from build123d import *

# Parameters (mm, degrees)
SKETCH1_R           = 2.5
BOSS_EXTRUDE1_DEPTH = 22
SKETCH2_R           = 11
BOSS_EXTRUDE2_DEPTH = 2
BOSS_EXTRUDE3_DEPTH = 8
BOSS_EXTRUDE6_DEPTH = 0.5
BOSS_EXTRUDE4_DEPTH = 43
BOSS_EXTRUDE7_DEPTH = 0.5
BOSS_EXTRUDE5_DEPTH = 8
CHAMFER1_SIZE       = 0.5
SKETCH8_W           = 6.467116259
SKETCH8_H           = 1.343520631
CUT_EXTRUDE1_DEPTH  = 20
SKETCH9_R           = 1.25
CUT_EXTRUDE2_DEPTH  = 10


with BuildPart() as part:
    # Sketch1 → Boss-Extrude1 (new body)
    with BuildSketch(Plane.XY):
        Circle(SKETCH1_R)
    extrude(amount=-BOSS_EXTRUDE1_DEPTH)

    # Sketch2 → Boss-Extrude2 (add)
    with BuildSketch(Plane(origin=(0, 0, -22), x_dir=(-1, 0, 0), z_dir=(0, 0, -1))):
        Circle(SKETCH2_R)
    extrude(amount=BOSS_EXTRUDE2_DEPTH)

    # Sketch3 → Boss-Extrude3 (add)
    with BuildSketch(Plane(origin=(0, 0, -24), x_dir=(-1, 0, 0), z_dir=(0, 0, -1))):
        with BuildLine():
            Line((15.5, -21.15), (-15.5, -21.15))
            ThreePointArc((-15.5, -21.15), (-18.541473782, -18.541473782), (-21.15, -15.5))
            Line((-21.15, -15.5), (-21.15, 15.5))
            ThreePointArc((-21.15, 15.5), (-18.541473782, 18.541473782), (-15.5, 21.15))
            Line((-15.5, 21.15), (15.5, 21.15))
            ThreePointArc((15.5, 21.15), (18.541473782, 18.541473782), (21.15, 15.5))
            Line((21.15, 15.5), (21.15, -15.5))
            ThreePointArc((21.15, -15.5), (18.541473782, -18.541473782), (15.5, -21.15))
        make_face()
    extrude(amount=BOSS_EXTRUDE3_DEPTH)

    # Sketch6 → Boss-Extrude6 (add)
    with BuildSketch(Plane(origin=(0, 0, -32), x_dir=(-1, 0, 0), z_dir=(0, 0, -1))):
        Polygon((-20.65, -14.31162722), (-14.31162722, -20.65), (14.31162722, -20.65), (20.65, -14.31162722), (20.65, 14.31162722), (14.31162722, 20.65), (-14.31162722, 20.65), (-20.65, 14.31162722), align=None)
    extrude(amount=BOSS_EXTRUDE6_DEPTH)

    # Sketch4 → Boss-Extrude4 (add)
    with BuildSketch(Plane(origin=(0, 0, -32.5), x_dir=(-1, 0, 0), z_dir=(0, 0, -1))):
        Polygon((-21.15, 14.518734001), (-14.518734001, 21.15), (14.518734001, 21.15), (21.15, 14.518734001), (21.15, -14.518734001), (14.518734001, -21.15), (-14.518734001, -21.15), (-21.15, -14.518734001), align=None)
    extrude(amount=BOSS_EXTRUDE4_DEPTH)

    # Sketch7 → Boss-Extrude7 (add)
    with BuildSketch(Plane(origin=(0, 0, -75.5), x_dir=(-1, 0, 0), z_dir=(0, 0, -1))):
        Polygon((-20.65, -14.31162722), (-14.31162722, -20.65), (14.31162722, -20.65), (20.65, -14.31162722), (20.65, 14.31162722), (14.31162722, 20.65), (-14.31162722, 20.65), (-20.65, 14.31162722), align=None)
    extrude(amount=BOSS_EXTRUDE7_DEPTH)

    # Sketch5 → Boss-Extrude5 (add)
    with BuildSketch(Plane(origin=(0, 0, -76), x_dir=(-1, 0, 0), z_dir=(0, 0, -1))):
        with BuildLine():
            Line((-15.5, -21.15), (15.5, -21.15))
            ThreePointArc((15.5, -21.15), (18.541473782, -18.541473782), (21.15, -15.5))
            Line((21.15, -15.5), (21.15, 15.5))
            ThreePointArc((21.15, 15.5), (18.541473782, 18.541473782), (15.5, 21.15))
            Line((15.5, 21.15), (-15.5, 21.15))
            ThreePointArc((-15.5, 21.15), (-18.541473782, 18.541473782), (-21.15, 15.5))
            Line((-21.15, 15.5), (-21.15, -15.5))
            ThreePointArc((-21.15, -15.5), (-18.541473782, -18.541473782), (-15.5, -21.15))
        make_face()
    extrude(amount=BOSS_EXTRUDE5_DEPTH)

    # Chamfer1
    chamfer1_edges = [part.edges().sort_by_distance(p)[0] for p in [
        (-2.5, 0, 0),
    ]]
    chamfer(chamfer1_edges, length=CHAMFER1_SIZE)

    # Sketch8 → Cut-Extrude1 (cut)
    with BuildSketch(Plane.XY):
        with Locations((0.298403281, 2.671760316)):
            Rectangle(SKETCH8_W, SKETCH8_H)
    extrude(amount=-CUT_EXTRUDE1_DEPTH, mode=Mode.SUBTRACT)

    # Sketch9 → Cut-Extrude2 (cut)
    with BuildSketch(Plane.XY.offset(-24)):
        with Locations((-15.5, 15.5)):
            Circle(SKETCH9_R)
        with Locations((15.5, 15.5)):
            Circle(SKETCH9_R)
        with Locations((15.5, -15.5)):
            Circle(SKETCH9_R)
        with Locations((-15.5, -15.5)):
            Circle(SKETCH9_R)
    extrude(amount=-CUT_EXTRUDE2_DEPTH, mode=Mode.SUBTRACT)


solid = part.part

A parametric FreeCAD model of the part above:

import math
import FreeCAD as App
import Part
import Sketcher

V = App.Vector


def edges_at(feature, points):
    """Names of the edges that pass closest to the given points."""
    edges = feature.Shape.Edges
    near = lambda p: min(range(len(edges)), key=lambda i: edges[i].distToShape(Part.Vertex(*p))[0])
    return sorted({f"Edge{near(p) + 1}" for p in points})

doc = App.newDocument("Part")
body = doc.addObject("PartDesign::Body", "Body")

# Sketch on XY plane
sketch1 = doc.addObject("Sketcher::SketchObject", "Sketch")
body.addObject(sketch1)
sketch1.AttachmentSupport = (doc.XY_Plane, [""])
sketch1.MapMode = "FlatFace"
sketch1.addGeometry(Part.Circle(V(0, 0, 0), V(0, 0, 1), 2.5), False)
sketch1.addConstraint(Sketcher.Constraint("Coincident", 0, 3, -1, 1))
sketch1.addConstraint(Sketcher.Constraint("Diameter", 0, 5.0))
pad1 = doc.addObject("PartDesign::Pad", "Pad")
body.addObject(pad1)
pad1.Profile = sketch1
pad1.Length = 22
pad1.Reversed = True

# Sketch on XY plane
sketch2 = doc.addObject("Sketcher::SketchObject", "Sketch001")
body.addObject(sketch2)
sketch2.AttachmentSupport = (doc.XY_Plane, [""])
sketch2.MapMode = "FlatFace"
sketch2.AttachmentOffset = App.Placement(V(0, 0, -22), App.Rotation())
sketch2.addGeometry(Part.Circle(V(0, 0, 0), V(0, 0, 1), 11), False)
sketch2.addConstraint(Sketcher.Constraint("Coincident", 0, 3, -1, 1))
sketch2.addConstraint(Sketcher.Constraint("Diameter", 0, 22.0))
pad2 = doc.addObject("PartDesign::Pad", "Pad001")
body.addObject(pad2)
pad2.Profile = sketch2
pad2.Length = 2
pad2.Reversed = True

# Sketch on XY plane
sketch3 = doc.addObject("Sketcher::SketchObject", "Sketch002")
body.addObject(sketch3)
sketch3.AttachmentSupport = (doc.XY_Plane, [""])
sketch3.MapMode = "FlatFace"
sketch3.AttachmentOffset = App.Placement(V(0, 0, -24), App.Rotation())
sketch3.addGeometry(Part.LineSegment(V(16, -21, 0), V(-16, -21, 0)), False)
sketch3.addGeometry(Part.ArcOfCircle(Part.Circle(V(0, 0, 0), V(0, 0, 1), 26), math.radians(-143.76), math.radians(-126.24)), False)
sketch3.addGeometry(Part.LineSegment(V(-21, -16, 0), V(-21, 16, 0)), False)
sketch3.addGeometry(Part.ArcOfCircle(Part.Circle(V(0, 0, 0), V(0, 0, 1), 26), math.radians(126.24), math.radians(143.76)), False)
sketch3.addGeometry(Part.LineSegment(V(-16, 21, 0), V(16, 21, 0)), False)
sketch3.addGeometry(Part.ArcOfCircle(Part.Circle(V(0, 0, 0), V(0, 0, 1), 26), math.radians(36.24), math.radians(53.76)), False)
sketch3.addGeometry(Part.LineSegment(V(21, 16, 0), V(21, -16, 0)), False)
sketch3.addGeometry(Part.ArcOfCircle(Part.Circle(V(0, 0, 0), V(0, 0, 1), 26), math.radians(-53.76), math.radians(-36.24)), False)
sketch3.addConstraint(Sketcher.Constraint("Coincident", 0, 2, 1, 2))
sketch3.addConstraint(Sketcher.Constraint("Coincident", 1, 1, 2, 1))
sketch3.addConstraint(Sketcher.Constraint("Coincident", 2, 2, 3, 2))
sketch3.addConstraint(Sketcher.Constraint("Coincident", 3, 1, 4, 1))
sketch3.addConstraint(Sketcher.Constraint("Coincident", 4, 2, 5, 2))
sketch3.addConstraint(Sketcher.Constraint("Coincident", 5, 1, 6, 1))
sketch3.addConstraint(Sketcher.Constraint("Coincident", 6, 2, 7, 2))
sketch3.addConstraint(Sketcher.Constraint("Coincident", 7, 1, 0, 1))
sketch3.addConstraint(Sketcher.Constraint("Horizontal", 0))
sketch3.addConstraint(Sketcher.Constraint("Vertical", 2))
sketch3.addConstraint(Sketcher.Constraint("Horizontal", 4))
sketch3.addConstraint(Sketcher.Constraint("Vertical", 6))
sketch3.addConstraint(Sketcher.Constraint("Coincident", 1, 3, -1, 1))
sketch3.addConstraint(Sketcher.Constraint("Coincident", 3, 3, -1, 1))
sketch3.addConstraint(Sketcher.Constraint("Coincident", 5, 3, -1, 1))
sketch3.addConstraint(Sketcher.Constraint("Coincident", 7, 3, -1, 1))
sketch3.addConstraint(Sketcher.Constraint("Equal", 1, 3))
sketch3.addConstraint(Sketcher.Constraint("Equal", 3, 5))
sketch3.addConstraint(Sketcher.Constraint("Equal", 5, 7))
sketch3.addConstraint(Sketcher.Constraint("Horizontal", 2, 2, 5, 1))
sketch3.addConstraint(Sketcher.Constraint("Vertical", 0, 2, 3, 1))
sketch3.addConstraint(Sketcher.Constraint("Equal", 4, 2))
sketch3.addConstraint(Sketcher.Constraint("DistanceX", 0, 2, 0, 1, 31.0))
sketch3.addConstraint(Sketcher.Constraint("DistanceY", 0, 2, -1, 1, 21.15))
pad3 = doc.addObject("PartDesign::Pad", "Pad002")
body.addObject(pad3)
pad3.Profile = sketch3
pad3.Length = 8
pad3.Reversed = True

# Sketch on XY plane
sketch4 = doc.addObject("Sketcher::SketchObject", "Sketch003")
body.addObject(sketch4)
sketch4.AttachmentSupport = (doc.XY_Plane, [""])
sketch4.MapMode = "FlatFace"
sketch4.AttachmentOffset = App.Placement(V(0, 0, -32), App.Rotation())
sketch4.addGeometry(Part.LineSegment(V(21, -14, 0), V(14, -21, 0)), False)
sketch4.addGeometry(Part.LineSegment(V(14, -21, 0), V(-14, -21, 0)), False)
sketch4.addGeometry(Part.LineSegment(V(-14, -21, 0), V(-21, -14, 0)), False)
sketch4.addGeometry(Part.LineSegment(V(-21, -14, 0), V(-21, 14, 0)), False)
sketch4.addGeometry(Part.LineSegment(V(-21, 14, 0), V(-14, 21, 0)), False)
sketch4.addGeometry(Part.LineSegment(V(-14, 21, 0), V(14, 21, 0)), False)
sketch4.addGeometry(Part.LineSegment(V(14, 21, 0), V(21, 14, 0)), False)
sketch4.addGeometry(Part.LineSegment(V(21, 14, 0), V(21, -14, 0)), False)
sketch4.addConstraint(Sketcher.Constraint("Coincident", 0, 2, 1, 1))
sketch4.addConstraint(Sketcher.Constraint("Coincident", 1, 2, 2, 1))
sketch4.addConstraint(Sketcher.Constraint("Coincident", 2, 2, 3, 1))
sketch4.addConstraint(Sketcher.Constraint("Coincident", 3, 2, 4, 1))
sketch4.addConstraint(Sketcher.Constraint("Coincident", 4, 2, 5, 1))
sketch4.addConstraint(Sketcher.Constraint("Coincident", 5, 2, 6, 1))
sketch4.addConstraint(Sketcher.Constraint("Coincident", 6, 2, 7, 1))
sketch4.addConstraint(Sketcher.Constraint("Coincident", 7, 2, 0, 1))
sketch4.addConstraint(Sketcher.Constraint("Horizontal", 1))
sketch4.addConstraint(Sketcher.Constraint("Vertical", 3))
sketch4.addConstraint(Sketcher.Constraint("Horizontal", 5))
sketch4.addConstraint(Sketcher.Constraint("Vertical", 7))
sketch4.addConstraint(Sketcher.Constraint("Symmetric", 0, 2, 4, 2, -1, 1))
sketch4.addConstraint(Sketcher.Constraint("Symmetric", 2, 2, 6, 2, -1, 1))
sketch4.addConstraint(Sketcher.Constraint("Perpendicular", 0, 2))
sketch4.addConstraint(Sketcher.Constraint("Perpendicular", 2, 4))
sketch4.addConstraint(Sketcher.Constraint("Perpendicular", 4, 6))
sketch4.addConstraint(Sketcher.Constraint("Horizontal", 3, 2, 6, 2))
sketch4.addConstraint(Sketcher.Constraint("Vertical", 1, 2, 4, 2))
sketch4.addConstraint(Sketcher.Constraint("Equal", 5, 3))
sketch4.addConstraint(Sketcher.Constraint("DistanceY", 1, 2, 4, 2, 41.3))
sketch4.addConstraint(Sketcher.Constraint("DistanceX", 1, 2, 1, 1, 28.623254))
pad4 = doc.addObject("PartDesign::Pad", "Pad003")
body.addObject(pad4)
pad4.Profile = sketch4
pad4.Length = 0.5
pad4.Reversed = True

# Sketch on XY plane
sketch5 = doc.addObject("Sketcher::SketchObject", "Sketch004")
body.addObject(sketch5)
sketch5.AttachmentSupport = (doc.XY_Plane, [""])
sketch5.MapMode = "FlatFace"
sketch5.AttachmentOffset = App.Placement(V(0, 0, -32.5), App.Rotation())
sketch5.addGeometry(Part.LineSegment(V(15, 21, 0), V(21, 15, 0)), False)
sketch5.addGeometry(Part.LineSegment(V(21, 15, 0), V(21, -15, 0)), False)
sketch5.addGeometry(Part.LineSegment(V(21, -15, 0), V(15, -21, 0)), False)
sketch5.addGeometry(Part.LineSegment(V(15, -21, 0), V(-15, -21, 0)), False)
sketch5.addGeometry(Part.LineSegment(V(-15, -21, 0), V(-21, -15, 0)), False)
sketch5.addGeometry(Part.LineSegment(V(-21, -15, 0), V(-21, 15, 0)), False)
sketch5.addGeometry(Part.LineSegment(V(-21, 15, 0), V(-15, 21, 0)), False)
sketch5.addGeometry(Part.LineSegment(V(-15, 21, 0), V(15, 21, 0)), False)
sketch5.addConstraint(Sketcher.Constraint("Coincident", 0, 2, 1, 1))
sketch5.addConstraint(Sketcher.Constraint("Coincident", 1, 2, 2, 1))
sketch5.addConstraint(Sketcher.Constraint("Coincident", 2, 2, 3, 1))
sketch5.addConstraint(Sketcher.Constraint("Coincident", 3, 2, 4, 1))
sketch5.addConstraint(Sketcher.Constraint("Coincident", 4, 2, 5, 1))
sketch5.addConstraint(Sketcher.Constraint("Coincident", 5, 2, 6, 1))
sketch5.addConstraint(Sketcher.Constraint("Coincident", 6, 2, 7, 1))
sketch5.addConstraint(Sketcher.Constraint("Coincident", 7, 2, 0, 1))
sketch5.addConstraint(Sketcher.Constraint("Vertical", 1))
sketch5.addConstraint(Sketcher.Constraint("Horizontal", 3))
sketch5.addConstraint(Sketcher.Constraint("Vertical", 5))
sketch5.addConstraint(Sketcher.Constraint("Horizontal", 7))
sketch5.addConstraint(Sketcher.Constraint("Symmetric", 0, 2, 4, 2, -1, 1))
sketch5.addConstraint(Sketcher.Constraint("Symmetric", 2, 2, 6, 2, -1, 1))
sketch5.addConstraint(Sketcher.Constraint("Perpendicular", 0, 2))
sketch5.addConstraint(Sketcher.Constraint("Perpendicular", 2, 4))
sketch5.addConstraint(Sketcher.Constraint("Perpendicular", 4, 6))
sketch5.addConstraint(Sketcher.Constraint("Horizontal", 1, 2, 4, 2))
sketch5.addConstraint(Sketcher.Constraint("Vertical", 3, 2, 6, 2))
sketch5.addConstraint(Sketcher.Constraint("Equal", 7, 1))
sketch5.addConstraint(Sketcher.Constraint("DistanceX", 4, 2, 1, 2, 42.3))
sketch5.addConstraint(Sketcher.Constraint("DistanceX", 3, 2, 3, 1, 29.037468))
pad5 = doc.addObject("PartDesign::Pad", "Pad004")
body.addObject(pad5)
pad5.Profile = sketch5
pad5.Length = 43
pad5.Reversed = True

# Sketch on XY plane
sketch6 = doc.addObject("Sketcher::SketchObject", "Sketch005")
body.addObject(sketch6)
sketch6.AttachmentSupport = (doc.XY_Plane, [""])
sketch6.MapMode = "FlatFace"
sketch6.AttachmentOffset = App.Placement(V(0, 0, -75.5), App.Rotation())
sketch6.addGeometry(Part.LineSegment(V(21, -14, 0), V(14, -21, 0)), False)
sketch6.addGeometry(Part.LineSegment(V(14, -21, 0), V(-14, -21, 0)), False)
sketch6.addGeometry(Part.LineSegment(V(-14, -21, 0), V(-21, -14, 0)), False)
sketch6.addGeometry(Part.LineSegment(V(-21, -14, 0), V(-21, 14, 0)), False)
sketch6.addGeometry(Part.LineSegment(V(-21, 14, 0), V(-14, 21, 0)), False)
sketch6.addGeometry(Part.LineSegment(V(-14, 21, 0), V(14, 21, 0)), False)
sketch6.addGeometry(Part.LineSegment(V(14, 21, 0), V(21, 14, 0)), False)
sketch6.addGeometry(Part.LineSegment(V(21, 14, 0), V(21, -14, 0)), False)
sketch6.addConstraint(Sketcher.Constraint("Coincident", 0, 2, 1, 1))
sketch6.addConstraint(Sketcher.Constraint("Coincident", 1, 2, 2, 1))
sketch6.addConstraint(Sketcher.Constraint("Coincident", 2, 2, 3, 1))
sketch6.addConstraint(Sketcher.Constraint("Coincident", 3, 2, 4, 1))
sketch6.addConstraint(Sketcher.Constraint("Coincident", 4, 2, 5, 1))
sketch6.addConstraint(Sketcher.Constraint("Coincident", 5, 2, 6, 1))
sketch6.addConstraint(Sketcher.Constraint("Coincident", 6, 2, 7, 1))
sketch6.addConstraint(Sketcher.Constraint("Coincident", 7, 2, 0, 1))
sketch6.addConstraint(Sketcher.Constraint("Horizontal", 1))
sketch6.addConstraint(Sketcher.Constraint("Vertical", 3))
sketch6.addConstraint(Sketcher.Constraint("Horizontal", 5))
sketch6.addConstraint(Sketcher.Constraint("Vertical", 7))
sketch6.addConstraint(Sketcher.Constraint("Symmetric", 0, 2, 4, 2, -1, 1))
sketch6.addConstraint(Sketcher.Constraint("Symmetric", 2, 2, 6, 2, -1, 1))
sketch6.addConstraint(Sketcher.Constraint("Perpendicular", 0, 2))
sketch6.addConstraint(Sketcher.Constraint("Perpendicular", 2, 4))
sketch6.addConstraint(Sketcher.Constraint("Perpendicular", 4, 6))
sketch6.addConstraint(Sketcher.Constraint("Horizontal", 3, 2, 6, 2))
sketch6.addConstraint(Sketcher.Constraint("Vertical", 1, 2, 4, 2))
sketch6.addConstraint(Sketcher.Constraint("Equal", 5, 3))
sketch6.addConstraint(Sketcher.Constraint("DistanceY", 1, 2, 4, 2, 41.3))
sketch6.addConstraint(Sketcher.Constraint("DistanceX", 1, 2, 1, 1, 28.623254))
pad6 = doc.addObject("PartDesign::Pad", "Pad005")
body.addObject(pad6)
pad6.Profile = sketch6
pad6.Length = 0.5
pad6.Reversed = True

# Sketch on XY plane
sketch7 = doc.addObject("Sketcher::SketchObject", "Sketch006")
body.addObject(sketch7)
sketch7.AttachmentSupport = (doc.XY_Plane, [""])
sketch7.MapMode = "FlatFace"
sketch7.AttachmentOffset = App.Placement(V(0, 0, -76), App.Rotation())
sketch7.addGeometry(Part.LineSegment(V(16, -21, 0), V(-16, -21, 0)), False)
sketch7.addGeometry(Part.ArcOfCircle(Part.Circle(V(0, 0, 0), V(0, 0, 1), 26), math.radians(-143.76), math.radians(-126.24)), False)
sketch7.addGeometry(Part.LineSegment(V(-21, -16, 0), V(-21, 16, 0)), False)
sketch7.addGeometry(Part.ArcOfCircle(Part.Circle(V(0, 0, 0), V(0, 0, 1), 26), math.radians(126.24), math.radians(143.76)), False)
sketch7.addGeometry(Part.LineSegment(V(-16, 21, 0), V(16, 21, 0)), False)
sketch7.addGeometry(Part.ArcOfCircle(Part.Circle(V(0, 0, 0), V(0, 0, 1), 26), math.radians(36.24), math.radians(53.76)), False)
sketch7.addGeometry(Part.LineSegment(V(21, 16, 0), V(21, -16, 0)), False)
sketch7.addGeometry(Part.ArcOfCircle(Part.Circle(V(0, 0, 0), V(0, 0, 1), 26), math.radians(-53.76), math.radians(-36.24)), False)
sketch7.addConstraint(Sketcher.Constraint("Coincident", 0, 2, 1, 2))
sketch7.addConstraint(Sketcher.Constraint("Coincident", 1, 1, 2, 1))
sketch7.addConstraint(Sketcher.Constraint("Coincident", 2, 2, 3, 2))
sketch7.addConstraint(Sketcher.Constraint("Coincident", 3, 1, 4, 1))
sketch7.addConstraint(Sketcher.Constraint("Coincident", 4, 2, 5, 2))
sketch7.addConstraint(Sketcher.Constraint("Coincident", 5, 1, 6, 1))
sketch7.addConstraint(Sketcher.Constraint("Coincident", 6, 2, 7, 2))
sketch7.addConstraint(Sketcher.Constraint("Coincident", 7, 1, 0, 1))
sketch7.addConstraint(Sketcher.Constraint("Horizontal", 0))
sketch7.addConstraint(Sketcher.Constraint("Vertical", 2))
sketch7.addConstraint(Sketcher.Constraint("Horizontal", 4))
sketch7.addConstraint(Sketcher.Constraint("Vertical", 6))
sketch7.addConstraint(Sketcher.Constraint("Coincident", 1, 3, -1, 1))
sketch7.addConstraint(Sketcher.Constraint("Coincident", 3, 3, -1, 1))
sketch7.addConstraint(Sketcher.Constraint("Coincident", 5, 3, -1, 1))
sketch7.addConstraint(Sketcher.Constraint("Coincident", 7, 3, -1, 1))
sketch7.addConstraint(Sketcher.Constraint("Equal", 1, 3))
sketch7.addConstraint(Sketcher.Constraint("Equal", 3, 5))
sketch7.addConstraint(Sketcher.Constraint("Equal", 5, 7))
sketch7.addConstraint(Sketcher.Constraint("Horizontal", 2, 2, 5, 1))
sketch7.addConstraint(Sketcher.Constraint("Vertical", 0, 2, 3, 1))
sketch7.addConstraint(Sketcher.Constraint("Equal", 4, 2))
sketch7.addConstraint(Sketcher.Constraint("DistanceX", 0, 2, 0, 1, 31.0))
sketch7.addConstraint(Sketcher.Constraint("DistanceY", 0, 2, -1, 1, 21.15))
pad7 = doc.addObject("PartDesign::Pad", "Pad006")
body.addObject(pad7)
pad7.Profile = sketch7
pad7.Length = 8
pad7.Reversed = True
doc.recompute()

chamfer = doc.addObject("PartDesign::Chamfer", "Chamfer")
body.addObject(chamfer)
chamfer.Base = (pad7, edges_at(pad7, [(-2.5, 0, 0)]))
chamfer.Size = 0.5

# Sketch on XY plane
sketch8 = doc.addObject("Sketcher::SketchObject", "Sketch007")
body.addObject(sketch8)
sketch8.AttachmentSupport = (doc.XY_Plane, [""])
sketch8.MapMode = "FlatFace"
sketch8.addGeometry(Part.LineSegment(V(-2.9, 3.3, 0), V(-2.9, 2, 0)), False)
sketch8.addGeometry(Part.LineSegment(V(-2.9, 2, 0), V(3.5, 2, 0)), False)
sketch8.addGeometry(Part.LineSegment(V(3.5, 2, 0), V(3.5, 3.3, 0)), False)
sketch8.addGeometry(Part.LineSegment(V(3.5, 3.3, 0), V(-2.9, 3.3, 0)), False)
sketch8.addConstraint(Sketcher.Constraint("Coincident", 0, 2, 1, 1))
sketch8.addConstraint(Sketcher.Constraint("Coincident", 1, 2, 2, 1))
sketch8.addConstraint(Sketcher.Constraint("Coincident", 2, 2, 3, 1))
sketch8.addConstraint(Sketcher.Constraint("Coincident", 3, 2, 0, 1))
sketch8.addConstraint(Sketcher.Constraint("Vertical", 0))
sketch8.addConstraint(Sketcher.Constraint("Horizontal", 1))
sketch8.addConstraint(Sketcher.Constraint("Vertical", 2))
sketch8.addConstraint(Sketcher.Constraint("Horizontal", 3))
sketch8.addConstraint(Sketcher.Constraint("DistanceY", -1, 1, 0, 2, 2.0))
sketch8.addConstraint(Sketcher.Constraint("DistanceY", 0, 2, 0, 1, 1.343521))
sketch8.addConstraint(Sketcher.Constraint("DistanceX", 1, 1, 1, 2, 6.467116))
sketch8.addConstraint(Sketcher.Constraint("DistanceX", -1, 1, 1, 2, 3.531961))
pocket1 = doc.addObject("PartDesign::Pocket", "Pocket")
body.addObject(pocket1)
pocket1.Profile = sketch8
pocket1.Length = 20

# Sketch on XY plane
sketch9 = doc.addObject("Sketcher::SketchObject", "Sketch008")
body.addObject(sketch9)
sketch9.AttachmentSupport = (doc.XY_Plane, [""])
sketch9.MapMode = "FlatFace"
sketch9.AttachmentOffset = App.Placement(V(0, 0, -24), App.Rotation())
sketch9.addGeometry(Part.Circle(V(-15.5, 15.5, 0), V(0, 0, 1), 1.2), False)
sketch9.addGeometry(Part.Circle(V(15.5, 15.5, 0), V(0, 0, 1), 1.2), False)
sketch9.addGeometry(Part.Circle(V(15.5, -15.5, 0), V(0, 0, 1), 1.2), False)
sketch9.addGeometry(Part.Circle(V(-15.5, -15.5, 0), V(0, 0, 1), 1.2), False)
sketch9.addConstraint(Sketcher.Constraint("Equal", 0, 1))
sketch9.addConstraint(Sketcher.Constraint("Equal", 1, 2))
sketch9.addConstraint(Sketcher.Constraint("Equal", 2, 3))
sketch9.addConstraint(Sketcher.Constraint("Symmetric", 0, 3, 2, 3, -1, 1))
sketch9.addConstraint(Sketcher.Constraint("Symmetric", 1, 3, 3, 3, -1, 1))
sketch9.addConstraint(Sketcher.Constraint("Symmetric", 0, 3, 1, 3, -2))
sketch9.addConstraint(Sketcher.Constraint("Diameter", 0, 2.5))
sketch9.addConstraint(Sketcher.Constraint("DistanceX", 0, 3, 1, 3, 31.0))
sketch9.addConstraint(Sketcher.Constraint("DistanceY", 2, 3, 1, 3, 31.0))
pocket2 = doc.addObject("PartDesign::Pocket", "Pocket001")
body.addObject(pocket2)
pocket2.Profile = sketch9
pocket2.Length = 10

doc.recompute()
